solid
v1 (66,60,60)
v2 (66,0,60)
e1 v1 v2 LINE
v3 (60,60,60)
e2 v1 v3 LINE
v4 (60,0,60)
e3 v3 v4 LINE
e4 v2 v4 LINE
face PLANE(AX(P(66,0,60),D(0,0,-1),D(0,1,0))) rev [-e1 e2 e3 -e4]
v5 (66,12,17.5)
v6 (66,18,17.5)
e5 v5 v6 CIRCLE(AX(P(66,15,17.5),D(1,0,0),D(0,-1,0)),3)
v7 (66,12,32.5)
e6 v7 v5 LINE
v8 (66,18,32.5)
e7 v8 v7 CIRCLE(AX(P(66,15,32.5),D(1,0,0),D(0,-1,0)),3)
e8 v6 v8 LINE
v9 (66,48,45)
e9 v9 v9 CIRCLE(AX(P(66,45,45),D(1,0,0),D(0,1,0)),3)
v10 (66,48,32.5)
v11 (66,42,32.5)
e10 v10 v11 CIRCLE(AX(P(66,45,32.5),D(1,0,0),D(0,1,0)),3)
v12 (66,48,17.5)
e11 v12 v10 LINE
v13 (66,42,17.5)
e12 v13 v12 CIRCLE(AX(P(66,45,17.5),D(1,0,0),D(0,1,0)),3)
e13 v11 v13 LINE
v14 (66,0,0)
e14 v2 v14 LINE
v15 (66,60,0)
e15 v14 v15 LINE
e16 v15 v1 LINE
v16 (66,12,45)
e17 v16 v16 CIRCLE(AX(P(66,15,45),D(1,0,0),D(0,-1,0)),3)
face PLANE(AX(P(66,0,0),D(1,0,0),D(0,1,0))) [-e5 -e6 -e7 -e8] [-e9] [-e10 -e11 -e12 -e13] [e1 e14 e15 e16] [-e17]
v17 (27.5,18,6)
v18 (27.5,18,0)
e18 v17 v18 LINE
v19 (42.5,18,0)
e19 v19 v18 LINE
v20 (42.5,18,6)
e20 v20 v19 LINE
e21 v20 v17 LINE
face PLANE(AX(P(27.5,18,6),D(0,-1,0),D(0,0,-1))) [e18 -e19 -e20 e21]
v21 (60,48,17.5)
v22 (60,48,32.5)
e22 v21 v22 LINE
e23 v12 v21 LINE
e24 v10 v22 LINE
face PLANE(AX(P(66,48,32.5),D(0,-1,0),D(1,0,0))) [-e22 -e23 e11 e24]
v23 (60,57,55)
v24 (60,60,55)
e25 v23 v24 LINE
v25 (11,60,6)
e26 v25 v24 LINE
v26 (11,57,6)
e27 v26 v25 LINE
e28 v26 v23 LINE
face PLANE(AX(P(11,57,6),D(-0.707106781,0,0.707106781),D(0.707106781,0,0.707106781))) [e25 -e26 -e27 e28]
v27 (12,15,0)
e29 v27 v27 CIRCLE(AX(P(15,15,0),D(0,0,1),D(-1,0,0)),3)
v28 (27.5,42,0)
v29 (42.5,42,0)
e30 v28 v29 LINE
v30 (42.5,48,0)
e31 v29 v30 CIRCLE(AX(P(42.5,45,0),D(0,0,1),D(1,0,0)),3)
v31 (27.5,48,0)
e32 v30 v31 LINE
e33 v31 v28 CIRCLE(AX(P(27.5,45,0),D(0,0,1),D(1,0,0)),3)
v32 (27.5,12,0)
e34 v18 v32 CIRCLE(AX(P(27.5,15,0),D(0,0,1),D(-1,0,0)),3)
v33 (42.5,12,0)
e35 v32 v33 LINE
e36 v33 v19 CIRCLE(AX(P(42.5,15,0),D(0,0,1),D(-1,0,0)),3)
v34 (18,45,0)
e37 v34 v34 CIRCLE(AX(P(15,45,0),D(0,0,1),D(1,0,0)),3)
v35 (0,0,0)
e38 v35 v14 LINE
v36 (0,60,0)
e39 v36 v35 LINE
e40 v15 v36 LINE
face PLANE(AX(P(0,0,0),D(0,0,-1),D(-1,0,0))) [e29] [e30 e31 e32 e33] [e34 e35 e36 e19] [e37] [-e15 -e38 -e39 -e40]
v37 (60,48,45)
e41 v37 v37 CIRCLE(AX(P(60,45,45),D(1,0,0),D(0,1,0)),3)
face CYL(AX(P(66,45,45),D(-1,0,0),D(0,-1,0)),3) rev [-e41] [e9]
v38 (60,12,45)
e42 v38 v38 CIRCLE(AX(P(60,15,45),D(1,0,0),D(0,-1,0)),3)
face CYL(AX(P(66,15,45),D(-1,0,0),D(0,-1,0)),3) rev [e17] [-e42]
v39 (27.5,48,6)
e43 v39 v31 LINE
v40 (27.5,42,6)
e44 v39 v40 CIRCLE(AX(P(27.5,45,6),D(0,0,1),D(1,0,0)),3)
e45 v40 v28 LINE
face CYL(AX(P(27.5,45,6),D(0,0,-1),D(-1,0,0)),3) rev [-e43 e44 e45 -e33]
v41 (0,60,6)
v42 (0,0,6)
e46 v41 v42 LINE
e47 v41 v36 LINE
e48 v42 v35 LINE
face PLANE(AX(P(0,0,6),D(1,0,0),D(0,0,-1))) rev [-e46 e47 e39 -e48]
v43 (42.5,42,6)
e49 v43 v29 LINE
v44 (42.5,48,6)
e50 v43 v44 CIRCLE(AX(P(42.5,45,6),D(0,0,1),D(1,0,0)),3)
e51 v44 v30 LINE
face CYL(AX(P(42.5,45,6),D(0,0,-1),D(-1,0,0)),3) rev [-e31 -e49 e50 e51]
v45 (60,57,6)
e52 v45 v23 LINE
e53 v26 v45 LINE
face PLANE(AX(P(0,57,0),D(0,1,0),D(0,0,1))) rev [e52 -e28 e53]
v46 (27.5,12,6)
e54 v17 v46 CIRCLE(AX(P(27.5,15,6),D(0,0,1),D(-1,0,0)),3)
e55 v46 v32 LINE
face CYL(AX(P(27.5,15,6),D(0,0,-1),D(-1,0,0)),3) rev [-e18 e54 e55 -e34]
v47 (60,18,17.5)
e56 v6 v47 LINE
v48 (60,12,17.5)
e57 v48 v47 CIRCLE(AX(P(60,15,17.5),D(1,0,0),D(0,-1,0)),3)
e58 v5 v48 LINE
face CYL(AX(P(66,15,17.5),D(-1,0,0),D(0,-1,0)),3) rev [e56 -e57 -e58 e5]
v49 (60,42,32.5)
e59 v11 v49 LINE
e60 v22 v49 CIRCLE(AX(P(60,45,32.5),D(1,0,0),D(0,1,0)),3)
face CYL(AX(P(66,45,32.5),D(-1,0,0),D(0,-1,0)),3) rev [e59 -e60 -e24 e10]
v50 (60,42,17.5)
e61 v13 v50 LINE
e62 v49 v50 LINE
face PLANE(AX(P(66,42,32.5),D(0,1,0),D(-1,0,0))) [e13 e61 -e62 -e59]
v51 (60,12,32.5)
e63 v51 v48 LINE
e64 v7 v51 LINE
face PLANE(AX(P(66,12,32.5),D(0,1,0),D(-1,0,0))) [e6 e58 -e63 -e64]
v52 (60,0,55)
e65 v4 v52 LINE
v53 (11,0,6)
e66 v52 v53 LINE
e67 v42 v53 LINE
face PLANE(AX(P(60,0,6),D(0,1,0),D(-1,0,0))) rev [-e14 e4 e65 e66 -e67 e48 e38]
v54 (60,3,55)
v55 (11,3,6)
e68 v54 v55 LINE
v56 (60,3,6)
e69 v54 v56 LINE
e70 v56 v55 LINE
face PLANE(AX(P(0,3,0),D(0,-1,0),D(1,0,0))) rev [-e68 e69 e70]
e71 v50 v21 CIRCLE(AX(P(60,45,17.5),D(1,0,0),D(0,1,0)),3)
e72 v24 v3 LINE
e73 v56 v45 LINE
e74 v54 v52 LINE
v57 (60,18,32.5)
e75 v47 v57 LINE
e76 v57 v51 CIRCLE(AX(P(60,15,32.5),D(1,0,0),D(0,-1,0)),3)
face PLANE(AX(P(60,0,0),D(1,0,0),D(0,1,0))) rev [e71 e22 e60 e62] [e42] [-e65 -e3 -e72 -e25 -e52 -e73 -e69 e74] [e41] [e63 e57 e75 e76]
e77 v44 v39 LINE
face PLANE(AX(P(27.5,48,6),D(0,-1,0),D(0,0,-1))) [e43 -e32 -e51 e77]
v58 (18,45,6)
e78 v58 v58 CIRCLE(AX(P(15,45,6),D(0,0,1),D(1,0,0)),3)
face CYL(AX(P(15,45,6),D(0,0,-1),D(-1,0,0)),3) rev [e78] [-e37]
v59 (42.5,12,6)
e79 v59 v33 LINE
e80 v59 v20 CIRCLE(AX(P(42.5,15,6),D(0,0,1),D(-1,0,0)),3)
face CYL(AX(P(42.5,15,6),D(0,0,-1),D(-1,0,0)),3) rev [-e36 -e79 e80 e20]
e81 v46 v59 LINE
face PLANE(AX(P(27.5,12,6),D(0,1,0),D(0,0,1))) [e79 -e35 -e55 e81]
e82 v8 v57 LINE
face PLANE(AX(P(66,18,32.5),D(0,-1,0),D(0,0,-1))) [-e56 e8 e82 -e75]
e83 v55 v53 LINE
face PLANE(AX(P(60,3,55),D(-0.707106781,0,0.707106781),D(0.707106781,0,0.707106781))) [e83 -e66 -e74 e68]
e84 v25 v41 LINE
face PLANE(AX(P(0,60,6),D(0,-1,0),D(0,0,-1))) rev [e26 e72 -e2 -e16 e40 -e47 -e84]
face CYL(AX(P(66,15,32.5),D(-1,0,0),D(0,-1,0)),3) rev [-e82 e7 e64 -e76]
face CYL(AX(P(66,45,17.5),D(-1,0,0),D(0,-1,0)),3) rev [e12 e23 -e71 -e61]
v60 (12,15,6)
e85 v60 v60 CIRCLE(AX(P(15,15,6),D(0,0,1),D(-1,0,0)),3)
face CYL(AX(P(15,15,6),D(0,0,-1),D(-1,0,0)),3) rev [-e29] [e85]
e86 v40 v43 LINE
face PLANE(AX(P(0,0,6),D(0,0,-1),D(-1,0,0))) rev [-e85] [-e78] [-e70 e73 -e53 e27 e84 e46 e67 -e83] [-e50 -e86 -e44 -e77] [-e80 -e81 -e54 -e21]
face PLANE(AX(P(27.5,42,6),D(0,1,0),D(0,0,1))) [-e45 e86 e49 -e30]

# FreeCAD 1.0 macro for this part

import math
import FreeCAD as App
import Part
import Sketcher

V = App.Vector

doc = App.newDocument("Part")
body = doc.addObject("PartDesign::Body", "Body")

sketch1 = body.newObject("Sketcher::SketchObject", "Sketch")
sketch1.AttachmentSupport = (doc.getObject("XY_Plane"), [""])
sketch1.MapMode = "FlatFace"
sketch1.addGeometry([
    Part.LineSegment(V(0, 60, 0), V(0, 0, 0)),
    Part.LineSegment(V(0, 0, 0), V(60, 0, 0)),
    Part.LineSegment(V(60, 0, 0), V(60, 60, 0)),
    Part.LineSegment(V(60, 60, 0), V(0, 60, 0)),
    Part.Circle(V(15, 15, 0), V(0, 0, 1), 3),
    Part.LineSegment(V(42.5, 12, 0), V(27.5, 12, 0)),
    Part.ArcOfCircle(Part.Circle(V(27.5, 15, 0), V(0, 0, 1), 3), math.radians(90), math.radians(270)),
    Part.LineSegment(V(27.5, 18, 0), V(42.5, 18, 0)),
    Part.ArcOfCircle(Part.Circle(V(42.5, 15, 0), V(0, 0, 1), 3), math.radians(-90), math.radians(90)),
    Part.Circle(V(15, 45, 0), V(0, 0, 1), 3),
    Part.LineSegment(V(42.5, 42, 0), V(27.5, 42, 0)),
    Part.ArcOfCircle(Part.Circle(V(27.5, 45, 0), V(0, 0, 1), 3), math.radians(90), math.radians(270)),
    Part.LineSegment(V(27.5, 48, 0), V(42.5, 48, 0)),
    Part.ArcOfCircle(Part.Circle(V(42.5, 45, 0), V(0, 0, 1), 3), math.radians(-90), math.radians(90)),
], False)
sketch1.addConstraint([
    Sketcher.Constraint("Coincident", 0, 2, 1, 1),
    Sketcher.Constraint("Coincident", 1, 2, 2, 1),
    Sketcher.Constraint("Coincident", 2, 2, 3, 1),
    Sketcher.Constraint("Coincident", 3, 2, 0, 1),
    Sketcher.Constraint("Tangent", 5, 2, 6, 2),
    Sketcher.Constraint("Tangent", 6, 1, 7, 1),
    Sketcher.Constraint("Tangent", 7, 2, 8, 2),
    Sketcher.Constraint("Tangent", 8, 1, 5, 1),
    Sketcher.Constraint("Tangent", 10, 2, 11, 2),
    Sketcher.Constraint("Tangent", 11, 1, 12, 1),
    Sketcher.Constraint("Tangent", 12, 2, 13, 2),
    Sketcher.Constraint("Tangent", 13, 1, 10, 1),
    Sketcher.Constraint("Vertical", 0),
    Sketcher.Constraint("Horizontal", 1),
    Sketcher.Constraint("Vertical", 2),
    Sketcher.Constraint("Horizontal", 3),
    Sketcher.Constraint("Horizontal", 5),
    Sketcher.Constraint("Horizontal", 7),
    Sketcher.Constraint("Horizontal", 10),
    Sketcher.Constraint("Horizontal", 12),
    Sketcher.Constraint("Coincident", 0, 2, -1, 1),
    Sketcher.Constraint("Equal", 4, 6),
    Sketcher.Constraint("Equal", 8, 9),
    Sketcher.Constraint("Equal", 9, 11),
    Sketcher.Constraint("Horizontal", 4, 3, 6, 3),
    Sketcher.Constraint("Horizontal", 9, 3, 11, 3),
    Sketcher.Constraint("Vertical", 4, 3, 9, 3),
    Sketcher.Constraint("Vertical", 6, 3, 11, 3),
    Sketcher.Constraint("Vertical", 8, 3, 13, 3),
    Sketcher.Constraint("Equal", 3, 0),
    Sketcher.Constraint("Diameter", 4, 6.0),
    Sketcher.Constraint("DistanceX", 1, 1, 1, 2, 60.0),
    Sketcher.Constraint("DistanceX", 5, 2, 5, 1, 15.0),
    Sketcher.Constraint("DistanceX", -1, 1, 4, 3, 15.0),
    Sketcher.Constraint("DistanceY", -1, 1, 4, 3, 15.0),
    Sketcher.Constraint("DistanceY", -1, 1, 9, 3, 45.0),
    Sketcher.Constraint("DistanceX", -1, 1, 6, 3, 27.5),
])
pad1 = body.newObject("PartDesign::Pad", "Pad")
pad1.Profile = sketch1
pad1.Length = 6

sketch2 = body.newObject("Sketcher::SketchObject", "Sketch001")
sketch2.AttachmentSupport = (doc.getObject("YZ_Plane"), [""])
sketch2.MapMode = "FlatFace"
sketch2.AttachmentOffset = App.Placement(V(0, 0, 60), App.Rotation())
sketch2.addGeometry([
    Part.LineSegment(V(60, 60, 0), V(0, 60, 0)),
    Part.LineSegment(V(0, 60, 0), V(0, 0, 0)),
    Part.LineSegment(V(0, 0, 0), V(60, 0, 0)),
    Part.LineSegment(V(60, 0, 0), V(60, 60, 0)),
    Part.Circle(V(15, 45, 0), V(0, 0, 1), 3),
    Part.ArcOfCircle(Part.Circle(V(15, 32.5, 0), V(0, 0, 1), 3), math.radians(0), math.radians(180)),
    Part.LineSegment(V(18, 32.5, 0), V(18, 17.5, 0)),
    Part.ArcOfCircle(Part.Circle(V(15, 17.5, 0), V(0, 0, 1), 3), math.radians(180), math.radians(360)),
    Part.LineSegment(V(12, 17.5, 0), V(12, 32.5, 0)),
    Part.Circle(V(45, 45, 0), V(0, 0, 1), 3),
    Part.ArcOfCircle(Part.Circle(V(45, 32.5, 0), V(0, 0, 1), 3), math.radians(0), math.radians(180)),
    Part.LineSegment(V(48, 32.5, 0), V(48, 17.5, 0)),
    Part.ArcOfCircle(Part.Circle(V(45, 17.5, 0), V(0, 0, 1), 3), math.radians(180), math.radians(360)),
    Part.LineSegment(V(42, 17.5, 0), V(42, 32.5, 0)),
], False)
sketch2.addConstraint([
    Sketcher.Constraint("Coincident", 0, 2, 1, 1),
    Sketcher.Constraint("Coincident", 1, 2, 2, 1),
    Sketcher.Constraint("Coincident", 2, 2, 3, 1),
    Sketcher.Constraint("Coincident", 3, 2, 0, 1),
    Sketcher.Constraint("Tangent", 5, 1, 6, 1),
    Sketcher.Constraint("Tangent", 6, 2, 7, 2),
    Sketcher.Constraint("Tangent", 7, 1, 8, 1),
    Sketcher.Constraint("Tangent", 8, 2, 5, 2),
    Sketcher.Constraint("Tangent", 10, 1, 11, 1),
    Sketcher.Constraint("Tangent", 11, 2, 12, 2),
    Sketcher.Constraint("Tangent", 12, 1, 13, 1),
    Sketcher.Constraint("Tangent", 13, 2, 10, 2),
    Sketcher.Constraint("Horizontal", 0),
    Sketcher.Constraint("Vertical", 1),
    Sketcher.Constraint("Horizontal", 2),
    Sketcher.Constraint("Vertical", 3),
    Sketcher.Constraint("Vertical", 6),
    Sketcher.Constraint("Vertical", 8),
    Sketcher.Constraint("Vertical", 11),
    Sketcher.Constraint("Vertical", 13),
    Sketcher.Constraint("Coincident", 1, 2, -1, 1),
    Sketcher.Constraint("Equal", 4, 5),
    Sketcher.Constraint("Equal", 7, 9),
    Sketcher.Constraint("Equal", 9, 10),
    Sketcher.Constraint("Horizontal", 4, 3, 9, 3),
    Sketcher.Constraint("Horizontal", 5, 3, 10, 3),
    Sketcher.Constraint("Horizontal", 7, 3, 12, 3),
    Sketcher.Constraint("Vertical", 4, 3, 5, 3),
    Sketcher.Constraint("Vertical", 9, 3, 10, 3),
    Sketcher.Constraint("Equal", 2, 1),
    Sketcher.Constraint("Diameter", 4, 6.0),
    Sketcher.Constraint("DistanceX", 0, 2, 0, 1, 60.0),
    Sketcher.Constraint("DistanceY", 6, 2, 6, 1, 15.0),
    Sketcher.Constraint("DistanceX", -1, 1, 4, 3, 15.0),
    Sketcher.Constraint("DistanceY", -1, 1, 4, 3, 45.0),
    Sketcher.Constraint("DistanceX", -1, 1, 9, 3, 45.0),
    Sketcher.Constraint("DistanceY", -1, 1, 5, 3, 32.5),
])
pad2 = body.newObject("PartDesign::Pad", "Pad001")
pad2.Profile = sketch2
pad2.Length = 6

sketch3 = body.newObject("Sketcher::SketchObject", "Sketch002")
sketch3.AttachmentSupport = (doc.getObject("XZ_Plane"), [""])
sketch3.MapMode = "FlatFace"
sketch3.AttachmentOffset = App.Placement(V(0, 0, -60), App.Rotation())
sketch3.addGeometry([
    Part.LineSegment(V(66, 0, 0), V(11, 0, 0)),
    Part.LineSegment(V(11, 0, 0), V(11, 6, 0)),
    Part.LineSegment(V(11, 6, 0), V(60, 55, 0)),
    Part.LineSegment(V(60, 55, 0), V(66, 55, 0)),
    Part.LineSegment(V(66, 55, 0), V(66, 0, 0)),
], False)
sketch3.addConstraint([
    Sketcher.Constraint("Coincident", 0, 2, 1, 1),
    Sketcher.Constraint("Coincident", 1, 2, 2, 1),
    Sketcher.Constraint("Coincident", 2, 2, 3, 1),
    Sketcher.Constraint("Coincident", 3, 2, 4, 1),
    Sketcher.Constraint("Coincident", 4, 2, 0, 1),
    Sketcher.Constraint("Horizontal", 0),
    Sketcher.Constraint("Vertical", 1),
    Sketcher.Constraint("Horizontal", 3),
    Sketcher.Constraint("Vertical", 4),
    Sketcher.Constraint("PointOnObject", 0, 2, -1),
    Sketcher.Constraint("Equal", 3, 1),
    Sketcher.Constraint("Equal", 0, 4),
    Sketcher.Constraint("DistanceX", 0, 2, 0, 1, 55.0),
    Sketcher.Constraint("DistanceX", 3, 1, 3, 2, 6.0),
    Sketcher.Constraint("DistanceX", -1, 1, 0, 2, 11.0),
])
pad3 = body.newObject("PartDesign::Pad", "Pad002")
pad3.Profile = sketch3
pad3.Length = 3

sketch4 = body.newObject("Sketcher::SketchObject", "Sketch003")
sketch4.AttachmentSupport = (doc.getObject("XZ_Plane"), [""])
sketch4.MapMode = "FlatFace"
sketch4.addGeometry([
    Part.LineSegment(V(66, 0, 0), V(66, 55, 0)),
    Part.LineSegment(V(66, 55, 0), V(60, 55, 0)),
    Part.LineSegment(V(60, 55, 0), V(11, 6, 0)),
    Part.LineSegment(V(11, 6, 0), V(11, 0, 0)),
    Part.LineSegment(V(11, 0, 0), V(66, 0, 0)),
], False)
sketch4.addConstraint([
    Sketcher.Constraint("Coincident", 0, 2, 1, 1),
    Sketcher.Constraint("Coincident", 1, 2, 2, 1),
    Sketcher.Constraint("Coincident", 2, 2, 3, 1),
    Sketcher.Constraint("Coincident", 3, 2, 4, 1),
    Sketcher.Constraint("Coincident", 4, 2, 0, 1),
    Sketcher.Constraint("Vertical", 0),
    Sketcher.Constraint("Horizontal", 1),
    Sketcher.Constraint("Vertical", 3),
    Sketcher.Constraint("Horizontal", 4),
    Sketcher.Constraint("PointOnObject", 3, 2, -1),
    Sketcher.Constraint("Equal", 4, 0),
    Sketcher.Constraint("Equal", 1, 3),
    Sketcher.Constraint("DistanceX", 1, 2, 1, 1, 6.0),
    Sketcher.Constraint("DistanceX", 4, 1, 4, 2, 55.0),
    Sketcher.Constraint("DistanceX", -1, 1, 0, 2, 66.0),
])
pad4 = body.newObject("PartDesign::Pad", "Pad003")
pad4.Profile = sketch4
pad4.Length = 3
pad4.Reversed = True

doc.recompute()
